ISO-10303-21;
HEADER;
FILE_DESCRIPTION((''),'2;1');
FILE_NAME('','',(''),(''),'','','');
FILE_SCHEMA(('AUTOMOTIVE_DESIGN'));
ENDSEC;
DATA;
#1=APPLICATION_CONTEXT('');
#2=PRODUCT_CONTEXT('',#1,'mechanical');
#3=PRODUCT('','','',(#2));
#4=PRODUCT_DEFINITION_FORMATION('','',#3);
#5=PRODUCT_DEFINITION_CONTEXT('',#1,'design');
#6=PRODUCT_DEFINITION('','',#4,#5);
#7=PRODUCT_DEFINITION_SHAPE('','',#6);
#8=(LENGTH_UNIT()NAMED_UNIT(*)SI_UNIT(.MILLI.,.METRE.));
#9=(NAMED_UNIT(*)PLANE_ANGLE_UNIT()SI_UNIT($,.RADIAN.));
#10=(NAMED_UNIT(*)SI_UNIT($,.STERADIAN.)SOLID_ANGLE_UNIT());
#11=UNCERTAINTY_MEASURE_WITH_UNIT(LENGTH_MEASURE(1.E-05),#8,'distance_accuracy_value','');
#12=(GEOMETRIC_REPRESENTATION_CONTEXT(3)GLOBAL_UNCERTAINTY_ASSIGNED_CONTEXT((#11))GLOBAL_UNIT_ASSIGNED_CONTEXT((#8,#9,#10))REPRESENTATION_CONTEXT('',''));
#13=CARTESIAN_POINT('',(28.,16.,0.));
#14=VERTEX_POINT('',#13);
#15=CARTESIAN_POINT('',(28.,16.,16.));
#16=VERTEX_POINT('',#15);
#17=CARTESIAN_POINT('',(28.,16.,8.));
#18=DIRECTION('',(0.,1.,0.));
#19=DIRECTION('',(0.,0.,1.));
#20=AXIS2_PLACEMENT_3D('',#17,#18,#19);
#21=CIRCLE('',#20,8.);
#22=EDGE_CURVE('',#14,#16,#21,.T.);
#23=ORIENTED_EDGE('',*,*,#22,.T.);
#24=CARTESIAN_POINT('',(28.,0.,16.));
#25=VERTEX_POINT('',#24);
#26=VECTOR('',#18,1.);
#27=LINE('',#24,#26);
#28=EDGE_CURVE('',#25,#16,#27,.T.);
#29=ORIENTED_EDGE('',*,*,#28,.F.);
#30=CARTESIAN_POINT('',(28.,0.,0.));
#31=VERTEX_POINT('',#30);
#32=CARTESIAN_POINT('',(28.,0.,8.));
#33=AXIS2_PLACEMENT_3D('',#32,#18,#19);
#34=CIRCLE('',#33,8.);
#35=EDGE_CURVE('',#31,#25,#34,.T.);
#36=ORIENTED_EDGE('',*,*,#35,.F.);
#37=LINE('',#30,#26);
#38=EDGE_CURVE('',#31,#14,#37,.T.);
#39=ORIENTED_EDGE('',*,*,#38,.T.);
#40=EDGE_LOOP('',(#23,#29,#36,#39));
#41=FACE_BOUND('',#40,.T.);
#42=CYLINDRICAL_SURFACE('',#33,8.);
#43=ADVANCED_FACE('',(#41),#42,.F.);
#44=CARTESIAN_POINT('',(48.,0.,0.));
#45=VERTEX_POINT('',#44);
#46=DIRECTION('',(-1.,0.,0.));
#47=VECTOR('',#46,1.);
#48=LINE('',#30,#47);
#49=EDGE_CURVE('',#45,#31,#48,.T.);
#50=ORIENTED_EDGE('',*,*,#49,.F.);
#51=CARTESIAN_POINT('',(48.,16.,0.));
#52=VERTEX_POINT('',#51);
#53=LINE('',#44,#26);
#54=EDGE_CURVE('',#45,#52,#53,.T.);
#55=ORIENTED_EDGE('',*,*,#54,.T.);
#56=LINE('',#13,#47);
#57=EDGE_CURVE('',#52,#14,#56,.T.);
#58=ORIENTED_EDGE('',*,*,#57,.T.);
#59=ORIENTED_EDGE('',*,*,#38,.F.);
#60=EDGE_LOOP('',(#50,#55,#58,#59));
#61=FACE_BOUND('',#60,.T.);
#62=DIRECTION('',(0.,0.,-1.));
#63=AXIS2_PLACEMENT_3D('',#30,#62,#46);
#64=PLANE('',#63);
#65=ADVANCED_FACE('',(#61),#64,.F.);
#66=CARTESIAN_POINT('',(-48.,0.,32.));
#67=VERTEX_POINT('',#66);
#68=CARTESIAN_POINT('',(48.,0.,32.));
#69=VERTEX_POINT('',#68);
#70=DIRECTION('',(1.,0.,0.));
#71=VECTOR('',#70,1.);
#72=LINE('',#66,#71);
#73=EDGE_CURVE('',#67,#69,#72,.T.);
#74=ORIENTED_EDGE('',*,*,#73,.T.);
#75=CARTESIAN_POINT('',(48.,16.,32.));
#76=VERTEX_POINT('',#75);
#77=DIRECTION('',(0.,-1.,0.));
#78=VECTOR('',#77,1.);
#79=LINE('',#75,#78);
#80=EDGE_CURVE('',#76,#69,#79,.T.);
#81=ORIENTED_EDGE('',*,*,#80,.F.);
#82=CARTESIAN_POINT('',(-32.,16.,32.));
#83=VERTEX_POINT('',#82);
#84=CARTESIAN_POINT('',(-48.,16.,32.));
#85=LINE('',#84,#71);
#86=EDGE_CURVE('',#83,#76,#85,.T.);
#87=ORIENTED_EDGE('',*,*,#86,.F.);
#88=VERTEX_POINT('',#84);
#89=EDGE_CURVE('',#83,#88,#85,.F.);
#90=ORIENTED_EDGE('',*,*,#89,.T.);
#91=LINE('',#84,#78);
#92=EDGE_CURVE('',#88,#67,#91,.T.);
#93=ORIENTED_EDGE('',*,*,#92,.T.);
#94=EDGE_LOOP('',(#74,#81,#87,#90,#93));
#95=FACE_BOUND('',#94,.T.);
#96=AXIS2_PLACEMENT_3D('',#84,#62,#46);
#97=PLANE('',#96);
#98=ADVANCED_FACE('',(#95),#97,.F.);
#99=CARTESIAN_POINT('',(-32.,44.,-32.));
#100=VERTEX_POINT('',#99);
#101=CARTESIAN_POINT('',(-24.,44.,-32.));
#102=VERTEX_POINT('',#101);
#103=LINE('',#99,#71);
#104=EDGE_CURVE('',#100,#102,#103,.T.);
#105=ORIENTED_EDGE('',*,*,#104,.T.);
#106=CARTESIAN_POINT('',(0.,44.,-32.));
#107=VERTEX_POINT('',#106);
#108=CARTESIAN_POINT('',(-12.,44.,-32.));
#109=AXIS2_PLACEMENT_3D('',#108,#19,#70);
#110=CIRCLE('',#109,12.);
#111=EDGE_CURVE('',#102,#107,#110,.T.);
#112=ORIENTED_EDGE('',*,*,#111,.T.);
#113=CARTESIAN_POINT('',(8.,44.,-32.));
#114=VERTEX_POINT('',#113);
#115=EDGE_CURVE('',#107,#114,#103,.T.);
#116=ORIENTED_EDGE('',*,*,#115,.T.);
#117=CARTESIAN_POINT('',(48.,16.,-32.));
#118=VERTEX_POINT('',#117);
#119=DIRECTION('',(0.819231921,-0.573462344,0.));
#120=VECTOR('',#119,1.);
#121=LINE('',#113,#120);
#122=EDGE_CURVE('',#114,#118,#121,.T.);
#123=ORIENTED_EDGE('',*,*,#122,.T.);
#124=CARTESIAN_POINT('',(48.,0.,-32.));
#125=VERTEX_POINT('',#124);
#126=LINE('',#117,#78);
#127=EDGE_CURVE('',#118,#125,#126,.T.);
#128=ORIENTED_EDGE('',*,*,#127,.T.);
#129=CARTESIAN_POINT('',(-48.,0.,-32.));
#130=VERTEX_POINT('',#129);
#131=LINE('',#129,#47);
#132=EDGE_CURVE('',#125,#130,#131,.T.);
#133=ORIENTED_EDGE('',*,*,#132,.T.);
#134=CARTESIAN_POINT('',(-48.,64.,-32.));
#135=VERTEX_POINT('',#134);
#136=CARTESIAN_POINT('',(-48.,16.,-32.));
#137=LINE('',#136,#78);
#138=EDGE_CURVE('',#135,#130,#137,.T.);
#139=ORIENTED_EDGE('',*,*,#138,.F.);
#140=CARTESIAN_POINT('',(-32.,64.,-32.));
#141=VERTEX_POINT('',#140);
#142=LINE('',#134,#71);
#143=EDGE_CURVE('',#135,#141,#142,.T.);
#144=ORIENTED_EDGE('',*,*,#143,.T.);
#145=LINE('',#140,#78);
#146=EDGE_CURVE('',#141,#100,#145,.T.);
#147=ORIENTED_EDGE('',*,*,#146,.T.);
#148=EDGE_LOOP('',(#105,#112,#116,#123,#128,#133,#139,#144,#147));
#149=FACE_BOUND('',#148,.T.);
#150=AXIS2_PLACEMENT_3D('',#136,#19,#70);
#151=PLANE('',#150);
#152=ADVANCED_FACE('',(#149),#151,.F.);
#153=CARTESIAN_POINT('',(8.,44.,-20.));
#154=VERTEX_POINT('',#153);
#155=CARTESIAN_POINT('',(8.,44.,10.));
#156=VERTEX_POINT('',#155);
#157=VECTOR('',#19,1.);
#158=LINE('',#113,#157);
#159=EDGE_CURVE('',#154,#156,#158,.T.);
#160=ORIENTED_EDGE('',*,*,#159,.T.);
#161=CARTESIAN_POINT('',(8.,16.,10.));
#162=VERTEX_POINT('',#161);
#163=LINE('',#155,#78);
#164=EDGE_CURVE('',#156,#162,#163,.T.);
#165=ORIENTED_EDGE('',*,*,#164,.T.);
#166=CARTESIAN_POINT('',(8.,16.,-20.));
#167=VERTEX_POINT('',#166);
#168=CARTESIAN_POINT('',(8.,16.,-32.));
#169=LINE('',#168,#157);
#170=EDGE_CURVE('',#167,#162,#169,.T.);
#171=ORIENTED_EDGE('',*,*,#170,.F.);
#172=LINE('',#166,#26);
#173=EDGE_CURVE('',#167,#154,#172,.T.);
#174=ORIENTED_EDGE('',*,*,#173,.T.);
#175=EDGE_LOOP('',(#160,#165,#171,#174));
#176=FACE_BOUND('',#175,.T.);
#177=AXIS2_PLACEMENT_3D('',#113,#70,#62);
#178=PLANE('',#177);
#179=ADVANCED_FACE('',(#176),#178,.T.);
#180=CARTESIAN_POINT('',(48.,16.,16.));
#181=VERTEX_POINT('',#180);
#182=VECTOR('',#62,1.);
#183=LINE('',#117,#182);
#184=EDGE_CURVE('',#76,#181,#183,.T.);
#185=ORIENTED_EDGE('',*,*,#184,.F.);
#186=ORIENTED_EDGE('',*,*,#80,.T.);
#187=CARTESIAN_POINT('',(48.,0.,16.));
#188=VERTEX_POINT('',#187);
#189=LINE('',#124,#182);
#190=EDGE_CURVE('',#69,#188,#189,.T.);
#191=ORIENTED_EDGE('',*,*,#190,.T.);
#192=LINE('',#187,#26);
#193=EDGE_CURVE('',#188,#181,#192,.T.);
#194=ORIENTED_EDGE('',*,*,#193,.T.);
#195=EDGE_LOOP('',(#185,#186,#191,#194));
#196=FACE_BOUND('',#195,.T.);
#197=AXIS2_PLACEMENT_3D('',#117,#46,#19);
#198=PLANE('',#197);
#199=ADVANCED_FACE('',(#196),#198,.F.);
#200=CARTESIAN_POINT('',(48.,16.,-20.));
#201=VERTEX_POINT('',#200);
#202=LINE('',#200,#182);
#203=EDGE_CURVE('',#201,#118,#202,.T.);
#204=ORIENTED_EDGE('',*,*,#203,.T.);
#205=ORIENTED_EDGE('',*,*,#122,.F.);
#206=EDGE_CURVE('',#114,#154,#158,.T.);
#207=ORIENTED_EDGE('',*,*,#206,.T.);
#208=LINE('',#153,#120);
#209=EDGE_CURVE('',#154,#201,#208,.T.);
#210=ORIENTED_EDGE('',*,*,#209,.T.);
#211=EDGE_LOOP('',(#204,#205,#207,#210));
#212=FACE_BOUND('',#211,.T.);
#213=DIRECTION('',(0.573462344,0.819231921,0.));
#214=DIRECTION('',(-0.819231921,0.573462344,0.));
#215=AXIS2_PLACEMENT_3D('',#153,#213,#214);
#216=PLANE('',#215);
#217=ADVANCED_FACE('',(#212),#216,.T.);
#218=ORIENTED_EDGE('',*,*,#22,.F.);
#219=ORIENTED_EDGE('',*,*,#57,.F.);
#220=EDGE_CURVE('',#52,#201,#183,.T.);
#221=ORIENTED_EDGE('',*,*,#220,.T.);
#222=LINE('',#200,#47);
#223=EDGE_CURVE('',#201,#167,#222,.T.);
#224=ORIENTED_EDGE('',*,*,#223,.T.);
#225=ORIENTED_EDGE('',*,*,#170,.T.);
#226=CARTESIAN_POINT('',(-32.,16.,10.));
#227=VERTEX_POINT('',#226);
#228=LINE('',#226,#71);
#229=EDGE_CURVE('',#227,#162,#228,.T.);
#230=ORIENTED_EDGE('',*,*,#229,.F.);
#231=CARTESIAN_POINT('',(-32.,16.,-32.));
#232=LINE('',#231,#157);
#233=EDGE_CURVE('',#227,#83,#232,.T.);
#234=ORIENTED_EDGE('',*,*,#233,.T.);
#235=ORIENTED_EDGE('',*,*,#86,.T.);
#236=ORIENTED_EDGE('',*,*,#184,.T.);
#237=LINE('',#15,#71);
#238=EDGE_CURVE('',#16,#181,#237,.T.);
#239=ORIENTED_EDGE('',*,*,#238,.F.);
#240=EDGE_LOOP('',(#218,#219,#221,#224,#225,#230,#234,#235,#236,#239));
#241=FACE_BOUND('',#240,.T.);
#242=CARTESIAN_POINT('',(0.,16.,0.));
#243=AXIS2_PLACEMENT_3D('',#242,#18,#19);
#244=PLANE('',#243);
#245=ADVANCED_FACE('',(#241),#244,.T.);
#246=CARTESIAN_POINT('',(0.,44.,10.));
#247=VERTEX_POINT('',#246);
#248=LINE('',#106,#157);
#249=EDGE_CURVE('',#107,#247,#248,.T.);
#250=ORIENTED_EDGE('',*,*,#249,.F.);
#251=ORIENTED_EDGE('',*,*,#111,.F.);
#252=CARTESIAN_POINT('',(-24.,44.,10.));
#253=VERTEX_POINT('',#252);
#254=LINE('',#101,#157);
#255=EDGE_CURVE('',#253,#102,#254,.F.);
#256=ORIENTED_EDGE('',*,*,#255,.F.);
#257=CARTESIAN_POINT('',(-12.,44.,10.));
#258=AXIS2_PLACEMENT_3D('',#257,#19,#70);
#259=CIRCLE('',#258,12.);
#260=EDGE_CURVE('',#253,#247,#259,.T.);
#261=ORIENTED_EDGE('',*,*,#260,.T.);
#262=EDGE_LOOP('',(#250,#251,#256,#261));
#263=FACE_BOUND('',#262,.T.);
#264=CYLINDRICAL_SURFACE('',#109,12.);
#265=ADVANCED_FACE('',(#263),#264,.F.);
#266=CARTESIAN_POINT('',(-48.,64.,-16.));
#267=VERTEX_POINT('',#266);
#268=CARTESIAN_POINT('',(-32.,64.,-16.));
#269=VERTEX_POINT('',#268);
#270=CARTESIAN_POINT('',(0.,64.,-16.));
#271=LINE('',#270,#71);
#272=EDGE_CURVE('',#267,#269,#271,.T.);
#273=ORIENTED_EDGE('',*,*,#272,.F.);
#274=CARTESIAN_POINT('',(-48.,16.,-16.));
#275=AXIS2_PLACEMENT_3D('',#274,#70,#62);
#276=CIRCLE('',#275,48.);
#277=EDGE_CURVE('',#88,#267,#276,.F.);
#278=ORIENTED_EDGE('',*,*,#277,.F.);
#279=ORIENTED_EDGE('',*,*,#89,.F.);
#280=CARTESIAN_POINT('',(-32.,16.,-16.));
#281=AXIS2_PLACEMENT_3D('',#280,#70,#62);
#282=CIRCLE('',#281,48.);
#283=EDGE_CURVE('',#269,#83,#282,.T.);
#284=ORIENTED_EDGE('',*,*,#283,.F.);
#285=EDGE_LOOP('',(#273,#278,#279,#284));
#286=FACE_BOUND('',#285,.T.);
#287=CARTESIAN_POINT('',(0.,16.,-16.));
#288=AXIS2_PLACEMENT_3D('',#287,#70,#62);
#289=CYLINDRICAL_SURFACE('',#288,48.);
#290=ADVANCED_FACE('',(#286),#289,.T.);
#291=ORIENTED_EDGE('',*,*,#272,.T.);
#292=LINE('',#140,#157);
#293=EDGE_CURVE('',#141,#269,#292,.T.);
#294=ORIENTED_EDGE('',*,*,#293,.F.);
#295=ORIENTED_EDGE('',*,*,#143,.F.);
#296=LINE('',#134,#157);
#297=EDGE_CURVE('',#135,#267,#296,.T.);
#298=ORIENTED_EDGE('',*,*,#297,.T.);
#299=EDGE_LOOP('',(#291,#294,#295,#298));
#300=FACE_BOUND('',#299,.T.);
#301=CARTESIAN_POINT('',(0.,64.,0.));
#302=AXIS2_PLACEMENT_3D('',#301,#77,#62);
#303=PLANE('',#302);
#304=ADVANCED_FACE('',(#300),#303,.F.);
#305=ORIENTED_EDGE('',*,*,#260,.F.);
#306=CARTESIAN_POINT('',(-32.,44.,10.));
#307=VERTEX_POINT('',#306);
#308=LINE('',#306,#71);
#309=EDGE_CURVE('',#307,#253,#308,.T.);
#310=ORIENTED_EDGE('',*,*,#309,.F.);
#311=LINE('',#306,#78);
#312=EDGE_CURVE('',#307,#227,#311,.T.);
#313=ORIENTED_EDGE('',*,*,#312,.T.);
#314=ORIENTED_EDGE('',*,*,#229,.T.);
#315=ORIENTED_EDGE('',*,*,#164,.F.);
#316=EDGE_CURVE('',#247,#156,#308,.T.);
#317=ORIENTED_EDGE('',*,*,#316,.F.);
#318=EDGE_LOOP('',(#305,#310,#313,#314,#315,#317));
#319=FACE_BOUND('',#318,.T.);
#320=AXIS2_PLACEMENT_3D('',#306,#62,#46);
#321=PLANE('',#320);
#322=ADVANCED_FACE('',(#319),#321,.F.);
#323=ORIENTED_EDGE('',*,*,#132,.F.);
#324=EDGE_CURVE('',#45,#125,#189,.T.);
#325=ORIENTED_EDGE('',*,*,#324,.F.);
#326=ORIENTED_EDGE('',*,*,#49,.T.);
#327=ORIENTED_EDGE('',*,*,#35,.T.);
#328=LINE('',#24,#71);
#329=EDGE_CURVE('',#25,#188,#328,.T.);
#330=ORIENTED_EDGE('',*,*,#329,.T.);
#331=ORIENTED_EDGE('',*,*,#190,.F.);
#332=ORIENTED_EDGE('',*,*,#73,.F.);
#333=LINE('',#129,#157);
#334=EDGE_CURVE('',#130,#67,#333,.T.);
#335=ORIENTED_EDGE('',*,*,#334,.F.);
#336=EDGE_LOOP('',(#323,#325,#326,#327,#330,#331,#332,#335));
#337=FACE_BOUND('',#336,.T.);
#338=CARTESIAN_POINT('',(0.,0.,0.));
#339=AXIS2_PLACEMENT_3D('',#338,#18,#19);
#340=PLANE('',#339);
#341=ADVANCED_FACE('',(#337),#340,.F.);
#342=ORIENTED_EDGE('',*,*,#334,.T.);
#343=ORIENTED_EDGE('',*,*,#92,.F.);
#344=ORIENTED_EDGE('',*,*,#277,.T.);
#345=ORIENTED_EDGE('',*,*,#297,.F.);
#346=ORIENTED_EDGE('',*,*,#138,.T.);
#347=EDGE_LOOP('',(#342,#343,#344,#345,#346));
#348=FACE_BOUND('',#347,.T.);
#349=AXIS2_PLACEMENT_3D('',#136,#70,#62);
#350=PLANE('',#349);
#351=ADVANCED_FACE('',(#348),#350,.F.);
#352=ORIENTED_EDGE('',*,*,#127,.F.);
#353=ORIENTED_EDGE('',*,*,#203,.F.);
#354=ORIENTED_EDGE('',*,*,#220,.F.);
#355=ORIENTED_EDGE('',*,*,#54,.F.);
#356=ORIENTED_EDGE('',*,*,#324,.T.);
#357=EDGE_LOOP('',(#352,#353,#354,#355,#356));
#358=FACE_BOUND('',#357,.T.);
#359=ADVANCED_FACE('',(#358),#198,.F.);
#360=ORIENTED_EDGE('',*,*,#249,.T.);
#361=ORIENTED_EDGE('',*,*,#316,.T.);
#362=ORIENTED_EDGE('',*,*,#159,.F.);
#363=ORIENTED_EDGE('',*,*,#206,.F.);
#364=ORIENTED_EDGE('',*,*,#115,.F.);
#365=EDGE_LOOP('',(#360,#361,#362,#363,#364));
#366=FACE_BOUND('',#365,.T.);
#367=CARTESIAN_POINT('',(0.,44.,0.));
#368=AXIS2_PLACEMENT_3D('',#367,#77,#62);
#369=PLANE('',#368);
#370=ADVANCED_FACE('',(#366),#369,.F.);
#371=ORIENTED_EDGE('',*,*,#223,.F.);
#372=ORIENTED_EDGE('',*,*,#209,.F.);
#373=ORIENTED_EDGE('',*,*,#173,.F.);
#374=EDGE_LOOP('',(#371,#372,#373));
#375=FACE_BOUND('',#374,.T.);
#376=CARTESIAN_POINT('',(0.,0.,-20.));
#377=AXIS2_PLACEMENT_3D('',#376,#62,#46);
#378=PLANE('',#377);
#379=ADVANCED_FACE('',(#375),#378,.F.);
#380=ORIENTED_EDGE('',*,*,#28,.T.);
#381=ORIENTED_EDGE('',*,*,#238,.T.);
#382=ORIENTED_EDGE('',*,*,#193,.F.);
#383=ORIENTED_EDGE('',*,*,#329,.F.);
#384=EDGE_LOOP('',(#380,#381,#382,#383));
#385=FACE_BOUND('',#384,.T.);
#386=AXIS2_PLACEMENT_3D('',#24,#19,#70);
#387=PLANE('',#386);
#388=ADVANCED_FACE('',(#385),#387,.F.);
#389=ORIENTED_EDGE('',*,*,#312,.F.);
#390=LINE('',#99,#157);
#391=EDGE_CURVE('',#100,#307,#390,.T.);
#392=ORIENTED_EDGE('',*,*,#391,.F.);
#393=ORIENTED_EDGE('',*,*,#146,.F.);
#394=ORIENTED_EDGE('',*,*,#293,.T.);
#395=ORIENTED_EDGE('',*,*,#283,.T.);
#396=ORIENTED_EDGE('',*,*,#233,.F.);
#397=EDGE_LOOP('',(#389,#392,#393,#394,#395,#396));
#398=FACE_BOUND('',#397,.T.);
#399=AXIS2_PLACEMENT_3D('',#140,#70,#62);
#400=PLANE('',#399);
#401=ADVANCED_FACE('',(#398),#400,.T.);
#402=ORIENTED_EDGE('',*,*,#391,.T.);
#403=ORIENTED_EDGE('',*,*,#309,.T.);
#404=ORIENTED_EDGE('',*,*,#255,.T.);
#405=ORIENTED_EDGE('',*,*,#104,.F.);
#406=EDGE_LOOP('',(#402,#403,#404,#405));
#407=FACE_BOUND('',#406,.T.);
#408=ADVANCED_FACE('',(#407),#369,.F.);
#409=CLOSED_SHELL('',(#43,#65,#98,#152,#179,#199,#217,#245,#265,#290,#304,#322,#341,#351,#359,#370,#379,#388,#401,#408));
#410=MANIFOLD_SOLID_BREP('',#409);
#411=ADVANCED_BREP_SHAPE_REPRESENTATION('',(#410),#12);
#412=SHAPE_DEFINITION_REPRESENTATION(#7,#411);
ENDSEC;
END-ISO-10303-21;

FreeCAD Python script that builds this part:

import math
import FreeCAD as App
import Part
import Sketcher
from FreeCAD import Vector


def edges_at(feature, points):
    """Names of the edges that pass closest to the given points."""
    edges = feature.Shape.Edges
    near = lambda p: min(range(len(edges)), key=lambda i: edges[i].distToShape(Part.Vertex(*p))[0])
    return sorted({f"Edge{near(p) + 1}" for p in points})


def add_polygon(sketch, points):
    """Adds a closed chain of lines whose ends are joined by coincident constraints."""
    first, n = sketch.GeometryCount, len(points)
    for a, b in zip(points, points[1:] + points[:1]):
        sketch.addGeometry(Part.LineSegment(App.Vector(*a, 0), App.Vector(*b, 0)), False)
    for i in range(n):
        sketch.addConstraint(Sketcher.Constraint("Coincident", first + i, 2, first + (i + 1) % n, 1))

doc = App.newDocument("Part")
body = doc.addObject("PartDesign::Body", "Body")

sketch1 = doc.addObject("Sketcher::SketchObject", "Sketch")
body.addObject(sketch1)
sketch1.AttachmentSupport = (doc.XZ_Plane, [""])
sketch1.MapMode = "FlatFace"
add_polygon(sketch1, [(-48, -32), (-48, 32), (48, 32), (48, -32)])
sketch1.addConstraint(Sketcher.Constraint("Vertical", 0))
sketch1.addConstraint(Sketcher.Constraint("Horizontal", 1))
sketch1.addConstraint(Sketcher.Constraint("Vertical", 2))
sketch1.addConstraint(Sketcher.Constraint("Horizontal", 3))
sketch1.addConstraint(Sketcher.Constraint("Symmetric", 0, 2, 2, 2, -1, 1))
sketch1.addConstraint(Sketcher.Constraint("DistanceX", 1, 1, 1, 2, 96.0))
sketch1.addConstraint(Sketcher.Constraint("DistanceY", 0, 1, 0, 2, 64.0))
pad1 = doc.addObject("PartDesign::Pad", "Pad")
body.addObject(pad1)
pad1.Profile = sketch1
pad1.Length = 16
pad1.Reversed = True

sketch2 = doc.addObject("Sketcher::SketchObject", "Sketch001")
body.addObject(sketch2)
sketch2.AttachmentSupport = (doc.XZ_Plane, [""])
sketch2.MapMode = "FlatFace"
sketch2.AttachmentOffset = App.Placement(Vector(0, 0, -16), App.Rotation())
add_polygon(sketch2, [(-48, -32), (-48, 32), (-32, 32), (-32, -32)])
sketch2.addConstraint(Sketcher.Constraint("Vertical", 0))
sketch2.addConstraint(Sketcher.Constraint("Horizontal", 1))
sketch2.addConstraint(Sketcher.Constraint("Vertical", 2))
sketch2.addConstraint(Sketcher.Constraint("Horizontal", 3))
sketch2.addConstraint(Sketcher.Constraint("DistanceX", 1, 1, 1, 2, 16.0))
sketch2.addConstraint(Sketcher.Constraint("DistanceY", 0, 1, 0, 2, 64.0))
sketch2.addConstraint(Sketcher.Constraint("DistanceX", 0, 2, -1, 1, 48.0))
sketch2.addConstraint(Sketcher.Constraint("DistanceY", -1, 1, 0, 2, 32.0))
pad2 = doc.addObject("PartDesign::Pad", "Pad001")
body.addObject(pad2)
pad2.Profile = sketch2
pad2.Length = 48
pad2.Reversed = True
doc.recompute()

fillet = doc.addObject("PartDesign::Fillet", "Fillet")
body.addObject(fillet)
fillet.Base = (pad2, edges_at(pad2, [(-40, 64, 32)]))
fillet.Radius = 48

sketch3 = doc.addObject("Sketcher::SketchObject", "Sketch002")
body.addObject(sketch3)
sketch3.AttachmentSupport = (doc.XZ_Plane, [""])
sketch3.MapMode = "FlatFace"
sketch3.AttachmentOffset = App.Placement(Vector(0, 0, -16), App.Rotation())
add_polygon(sketch3, [(-32, -32), (-32, 10), (8, 10), (8, -32)])
sketch3.addConstraint(Sketcher.Constraint("Vertical", 0))
sketch3.addConstraint(Sketcher.Constraint("Horizontal", 1))
sketch3.addConstraint(Sketcher.Constraint("Vertical", 2))
sketch3.addConstraint(Sketcher.Constraint("Horizontal", 3))
sketch3.addConstraint(Sketcher.Constraint("DistanceX", 1, 1, 1, 2, 40.0))
sketch3.addConstraint(Sketcher.Constraint("DistanceY", 0, 1, 0, 2, 42.0))
sketch3.addConstraint(Sketcher.Constraint("DistanceX", 0, 2, -1, 1, 32.0))
sketch3.addConstraint(Sketcher.Constraint("DistanceY", -1, 1, 0, 2, 10.0))
pad3 = doc.addObject("PartDesign::Pad", "Pad002")
body.addObject(pad3)
pad3.Profile = sketch3
pad3.Length = 28
pad3.Reversed = True

sketch4 = doc.addObject("Sketcher::SketchObject", "Sketch003")
body.addObject(sketch4)
sketch4.AttachmentSupport = (doc.XY_Plane, [""])
sketch4.MapMode = "FlatFace"
sketch4.AttachmentOffset = App.Placement(Vector(0, 0, 10), App.Rotation())
sketch4.addGeometry(Part.Circle(Vector(-12, 44, 0), Vector(0, 0, 1), 12), False)
sketch4.addConstraint(Sketcher.Constraint("Diameter", 0, 24.0))
sketch4.addConstraint(Sketcher.Constraint("DistanceX", 0, 3, -1, 1, 12.0))
sketch4.addConstraint(Sketcher.Constraint("DistanceY", -1, 1, 0, 3, 44.0))
pocket1 = doc.addObject("PartDesign::Pocket", "Pocket")
body.addObject(pocket1)
pocket1.Profile = sketch4
pocket1.Type = "ThroughAll"

sketch5 = doc.addObject("Sketcher::SketchObject", "Sketch004")
body.addObject(sketch5)
sketch5.AttachmentSupport = (doc.XY_Plane, [""])
sketch5.MapMode = "FlatFace"
sketch5.AttachmentOffset = App.Placement(Vector(0, 0, -32), App.Rotation())
add_polygon(sketch5, [(8, 16), (8, 44), (48, 16)])
sketch5.addConstraint(Sketcher.Constraint("Vertical", 0))
sketch5.addConstraint(Sketcher.Constraint("Horizontal", 2))
sketch5.addConstraint(Sketcher.Constraint("DistanceX", 2, 2, 2, 1, 40.0))
sketch5.addConstraint(Sketcher.Constraint("DistanceY", 0, 1, 0, 2, 28.0))
sketch5.addConstraint(Sketcher.Constraint("DistanceX", -1, 1, 0, 2, 8.0))
sketch5.addConstraint(Sketcher.Constraint("DistanceY", -1, 1, 0, 2, 44.0))
pad4 = doc.addObject("PartDesign::Pad", "Pad003")
body.addObject(pad4)
pad4.Profile = sketch5
pad4.Length = 12

sketch6 = doc.addObject("Sketcher::SketchObject", "Sketch005")
body.addObject(sketch6)
sketch6.AttachmentSupport = (doc.XZ_Plane, [""])
sketch6.MapMode = "FlatFace"
sketch6.AttachmentOffset = App.Placement(Vector(0, 0, -16), App.Rotation())
sketch6.addGeometry(Part.LineSegment(Vector(48, 0, 0), Vector(28, 0, 0)), False)
sketch6.addGeometry(Part.ArcOfCircle(Part.Circle(Vector(28, 8, 0), Vector(0, 0, 1), 8), math.radians(90), math.radians(270)), False)
sketch6.addGeometry(Part.LineSegment(Vector(28, 16, 0), Vector(48, 16, 0)), False)
sketch6.addGeometry(Part.ArcOfCircle(Part.Circle(Vector(48, 8, 0), Vector(0, 0, 1), 8), math.radians(-90), math.radians(90)), False)
sketch6.addConstraint(Sketcher.Constraint("Tangent", 0, 2, 1, 2))
sketch6.addConstraint(Sketcher.Constraint("Tangent", 1, 1, 2, 1))
sketch6.addConstraint(Sketcher.Constraint("Tangent", 2, 2, 3, 2))
sketch6.addConstraint(Sketcher.Constraint("Tangent", 3, 1, 0, 1))
sketch6.addConstraint(Sketcher.Constraint("Horizontal", 0))
sketch6.addConstraint(Sketcher.Constraint("Horizontal", 2))
sketch6.addConstraint(Sketcher.Constraint("PointOnObject", 0, 2, -1))
sketch6.addConstraint(Sketcher.Constraint("Radius", 1, 8.0))
sketch6.addConstraint(Sketcher.Constraint("DistanceX", 0, 2, 0, 1, 20.0))
sketch6.addConstraint(Sketcher.Constraint("DistanceX", -1, 1, 1, 3, 28.0))
pocket2 = doc.addObject("PartDesign::Pocket", "Pocket001")
body.addObject(pocket2)
pocket2.Profile = sketch6
pocket2.Type = "ThroughAll"
pocket2.Reversed = True

doc.recompute()
